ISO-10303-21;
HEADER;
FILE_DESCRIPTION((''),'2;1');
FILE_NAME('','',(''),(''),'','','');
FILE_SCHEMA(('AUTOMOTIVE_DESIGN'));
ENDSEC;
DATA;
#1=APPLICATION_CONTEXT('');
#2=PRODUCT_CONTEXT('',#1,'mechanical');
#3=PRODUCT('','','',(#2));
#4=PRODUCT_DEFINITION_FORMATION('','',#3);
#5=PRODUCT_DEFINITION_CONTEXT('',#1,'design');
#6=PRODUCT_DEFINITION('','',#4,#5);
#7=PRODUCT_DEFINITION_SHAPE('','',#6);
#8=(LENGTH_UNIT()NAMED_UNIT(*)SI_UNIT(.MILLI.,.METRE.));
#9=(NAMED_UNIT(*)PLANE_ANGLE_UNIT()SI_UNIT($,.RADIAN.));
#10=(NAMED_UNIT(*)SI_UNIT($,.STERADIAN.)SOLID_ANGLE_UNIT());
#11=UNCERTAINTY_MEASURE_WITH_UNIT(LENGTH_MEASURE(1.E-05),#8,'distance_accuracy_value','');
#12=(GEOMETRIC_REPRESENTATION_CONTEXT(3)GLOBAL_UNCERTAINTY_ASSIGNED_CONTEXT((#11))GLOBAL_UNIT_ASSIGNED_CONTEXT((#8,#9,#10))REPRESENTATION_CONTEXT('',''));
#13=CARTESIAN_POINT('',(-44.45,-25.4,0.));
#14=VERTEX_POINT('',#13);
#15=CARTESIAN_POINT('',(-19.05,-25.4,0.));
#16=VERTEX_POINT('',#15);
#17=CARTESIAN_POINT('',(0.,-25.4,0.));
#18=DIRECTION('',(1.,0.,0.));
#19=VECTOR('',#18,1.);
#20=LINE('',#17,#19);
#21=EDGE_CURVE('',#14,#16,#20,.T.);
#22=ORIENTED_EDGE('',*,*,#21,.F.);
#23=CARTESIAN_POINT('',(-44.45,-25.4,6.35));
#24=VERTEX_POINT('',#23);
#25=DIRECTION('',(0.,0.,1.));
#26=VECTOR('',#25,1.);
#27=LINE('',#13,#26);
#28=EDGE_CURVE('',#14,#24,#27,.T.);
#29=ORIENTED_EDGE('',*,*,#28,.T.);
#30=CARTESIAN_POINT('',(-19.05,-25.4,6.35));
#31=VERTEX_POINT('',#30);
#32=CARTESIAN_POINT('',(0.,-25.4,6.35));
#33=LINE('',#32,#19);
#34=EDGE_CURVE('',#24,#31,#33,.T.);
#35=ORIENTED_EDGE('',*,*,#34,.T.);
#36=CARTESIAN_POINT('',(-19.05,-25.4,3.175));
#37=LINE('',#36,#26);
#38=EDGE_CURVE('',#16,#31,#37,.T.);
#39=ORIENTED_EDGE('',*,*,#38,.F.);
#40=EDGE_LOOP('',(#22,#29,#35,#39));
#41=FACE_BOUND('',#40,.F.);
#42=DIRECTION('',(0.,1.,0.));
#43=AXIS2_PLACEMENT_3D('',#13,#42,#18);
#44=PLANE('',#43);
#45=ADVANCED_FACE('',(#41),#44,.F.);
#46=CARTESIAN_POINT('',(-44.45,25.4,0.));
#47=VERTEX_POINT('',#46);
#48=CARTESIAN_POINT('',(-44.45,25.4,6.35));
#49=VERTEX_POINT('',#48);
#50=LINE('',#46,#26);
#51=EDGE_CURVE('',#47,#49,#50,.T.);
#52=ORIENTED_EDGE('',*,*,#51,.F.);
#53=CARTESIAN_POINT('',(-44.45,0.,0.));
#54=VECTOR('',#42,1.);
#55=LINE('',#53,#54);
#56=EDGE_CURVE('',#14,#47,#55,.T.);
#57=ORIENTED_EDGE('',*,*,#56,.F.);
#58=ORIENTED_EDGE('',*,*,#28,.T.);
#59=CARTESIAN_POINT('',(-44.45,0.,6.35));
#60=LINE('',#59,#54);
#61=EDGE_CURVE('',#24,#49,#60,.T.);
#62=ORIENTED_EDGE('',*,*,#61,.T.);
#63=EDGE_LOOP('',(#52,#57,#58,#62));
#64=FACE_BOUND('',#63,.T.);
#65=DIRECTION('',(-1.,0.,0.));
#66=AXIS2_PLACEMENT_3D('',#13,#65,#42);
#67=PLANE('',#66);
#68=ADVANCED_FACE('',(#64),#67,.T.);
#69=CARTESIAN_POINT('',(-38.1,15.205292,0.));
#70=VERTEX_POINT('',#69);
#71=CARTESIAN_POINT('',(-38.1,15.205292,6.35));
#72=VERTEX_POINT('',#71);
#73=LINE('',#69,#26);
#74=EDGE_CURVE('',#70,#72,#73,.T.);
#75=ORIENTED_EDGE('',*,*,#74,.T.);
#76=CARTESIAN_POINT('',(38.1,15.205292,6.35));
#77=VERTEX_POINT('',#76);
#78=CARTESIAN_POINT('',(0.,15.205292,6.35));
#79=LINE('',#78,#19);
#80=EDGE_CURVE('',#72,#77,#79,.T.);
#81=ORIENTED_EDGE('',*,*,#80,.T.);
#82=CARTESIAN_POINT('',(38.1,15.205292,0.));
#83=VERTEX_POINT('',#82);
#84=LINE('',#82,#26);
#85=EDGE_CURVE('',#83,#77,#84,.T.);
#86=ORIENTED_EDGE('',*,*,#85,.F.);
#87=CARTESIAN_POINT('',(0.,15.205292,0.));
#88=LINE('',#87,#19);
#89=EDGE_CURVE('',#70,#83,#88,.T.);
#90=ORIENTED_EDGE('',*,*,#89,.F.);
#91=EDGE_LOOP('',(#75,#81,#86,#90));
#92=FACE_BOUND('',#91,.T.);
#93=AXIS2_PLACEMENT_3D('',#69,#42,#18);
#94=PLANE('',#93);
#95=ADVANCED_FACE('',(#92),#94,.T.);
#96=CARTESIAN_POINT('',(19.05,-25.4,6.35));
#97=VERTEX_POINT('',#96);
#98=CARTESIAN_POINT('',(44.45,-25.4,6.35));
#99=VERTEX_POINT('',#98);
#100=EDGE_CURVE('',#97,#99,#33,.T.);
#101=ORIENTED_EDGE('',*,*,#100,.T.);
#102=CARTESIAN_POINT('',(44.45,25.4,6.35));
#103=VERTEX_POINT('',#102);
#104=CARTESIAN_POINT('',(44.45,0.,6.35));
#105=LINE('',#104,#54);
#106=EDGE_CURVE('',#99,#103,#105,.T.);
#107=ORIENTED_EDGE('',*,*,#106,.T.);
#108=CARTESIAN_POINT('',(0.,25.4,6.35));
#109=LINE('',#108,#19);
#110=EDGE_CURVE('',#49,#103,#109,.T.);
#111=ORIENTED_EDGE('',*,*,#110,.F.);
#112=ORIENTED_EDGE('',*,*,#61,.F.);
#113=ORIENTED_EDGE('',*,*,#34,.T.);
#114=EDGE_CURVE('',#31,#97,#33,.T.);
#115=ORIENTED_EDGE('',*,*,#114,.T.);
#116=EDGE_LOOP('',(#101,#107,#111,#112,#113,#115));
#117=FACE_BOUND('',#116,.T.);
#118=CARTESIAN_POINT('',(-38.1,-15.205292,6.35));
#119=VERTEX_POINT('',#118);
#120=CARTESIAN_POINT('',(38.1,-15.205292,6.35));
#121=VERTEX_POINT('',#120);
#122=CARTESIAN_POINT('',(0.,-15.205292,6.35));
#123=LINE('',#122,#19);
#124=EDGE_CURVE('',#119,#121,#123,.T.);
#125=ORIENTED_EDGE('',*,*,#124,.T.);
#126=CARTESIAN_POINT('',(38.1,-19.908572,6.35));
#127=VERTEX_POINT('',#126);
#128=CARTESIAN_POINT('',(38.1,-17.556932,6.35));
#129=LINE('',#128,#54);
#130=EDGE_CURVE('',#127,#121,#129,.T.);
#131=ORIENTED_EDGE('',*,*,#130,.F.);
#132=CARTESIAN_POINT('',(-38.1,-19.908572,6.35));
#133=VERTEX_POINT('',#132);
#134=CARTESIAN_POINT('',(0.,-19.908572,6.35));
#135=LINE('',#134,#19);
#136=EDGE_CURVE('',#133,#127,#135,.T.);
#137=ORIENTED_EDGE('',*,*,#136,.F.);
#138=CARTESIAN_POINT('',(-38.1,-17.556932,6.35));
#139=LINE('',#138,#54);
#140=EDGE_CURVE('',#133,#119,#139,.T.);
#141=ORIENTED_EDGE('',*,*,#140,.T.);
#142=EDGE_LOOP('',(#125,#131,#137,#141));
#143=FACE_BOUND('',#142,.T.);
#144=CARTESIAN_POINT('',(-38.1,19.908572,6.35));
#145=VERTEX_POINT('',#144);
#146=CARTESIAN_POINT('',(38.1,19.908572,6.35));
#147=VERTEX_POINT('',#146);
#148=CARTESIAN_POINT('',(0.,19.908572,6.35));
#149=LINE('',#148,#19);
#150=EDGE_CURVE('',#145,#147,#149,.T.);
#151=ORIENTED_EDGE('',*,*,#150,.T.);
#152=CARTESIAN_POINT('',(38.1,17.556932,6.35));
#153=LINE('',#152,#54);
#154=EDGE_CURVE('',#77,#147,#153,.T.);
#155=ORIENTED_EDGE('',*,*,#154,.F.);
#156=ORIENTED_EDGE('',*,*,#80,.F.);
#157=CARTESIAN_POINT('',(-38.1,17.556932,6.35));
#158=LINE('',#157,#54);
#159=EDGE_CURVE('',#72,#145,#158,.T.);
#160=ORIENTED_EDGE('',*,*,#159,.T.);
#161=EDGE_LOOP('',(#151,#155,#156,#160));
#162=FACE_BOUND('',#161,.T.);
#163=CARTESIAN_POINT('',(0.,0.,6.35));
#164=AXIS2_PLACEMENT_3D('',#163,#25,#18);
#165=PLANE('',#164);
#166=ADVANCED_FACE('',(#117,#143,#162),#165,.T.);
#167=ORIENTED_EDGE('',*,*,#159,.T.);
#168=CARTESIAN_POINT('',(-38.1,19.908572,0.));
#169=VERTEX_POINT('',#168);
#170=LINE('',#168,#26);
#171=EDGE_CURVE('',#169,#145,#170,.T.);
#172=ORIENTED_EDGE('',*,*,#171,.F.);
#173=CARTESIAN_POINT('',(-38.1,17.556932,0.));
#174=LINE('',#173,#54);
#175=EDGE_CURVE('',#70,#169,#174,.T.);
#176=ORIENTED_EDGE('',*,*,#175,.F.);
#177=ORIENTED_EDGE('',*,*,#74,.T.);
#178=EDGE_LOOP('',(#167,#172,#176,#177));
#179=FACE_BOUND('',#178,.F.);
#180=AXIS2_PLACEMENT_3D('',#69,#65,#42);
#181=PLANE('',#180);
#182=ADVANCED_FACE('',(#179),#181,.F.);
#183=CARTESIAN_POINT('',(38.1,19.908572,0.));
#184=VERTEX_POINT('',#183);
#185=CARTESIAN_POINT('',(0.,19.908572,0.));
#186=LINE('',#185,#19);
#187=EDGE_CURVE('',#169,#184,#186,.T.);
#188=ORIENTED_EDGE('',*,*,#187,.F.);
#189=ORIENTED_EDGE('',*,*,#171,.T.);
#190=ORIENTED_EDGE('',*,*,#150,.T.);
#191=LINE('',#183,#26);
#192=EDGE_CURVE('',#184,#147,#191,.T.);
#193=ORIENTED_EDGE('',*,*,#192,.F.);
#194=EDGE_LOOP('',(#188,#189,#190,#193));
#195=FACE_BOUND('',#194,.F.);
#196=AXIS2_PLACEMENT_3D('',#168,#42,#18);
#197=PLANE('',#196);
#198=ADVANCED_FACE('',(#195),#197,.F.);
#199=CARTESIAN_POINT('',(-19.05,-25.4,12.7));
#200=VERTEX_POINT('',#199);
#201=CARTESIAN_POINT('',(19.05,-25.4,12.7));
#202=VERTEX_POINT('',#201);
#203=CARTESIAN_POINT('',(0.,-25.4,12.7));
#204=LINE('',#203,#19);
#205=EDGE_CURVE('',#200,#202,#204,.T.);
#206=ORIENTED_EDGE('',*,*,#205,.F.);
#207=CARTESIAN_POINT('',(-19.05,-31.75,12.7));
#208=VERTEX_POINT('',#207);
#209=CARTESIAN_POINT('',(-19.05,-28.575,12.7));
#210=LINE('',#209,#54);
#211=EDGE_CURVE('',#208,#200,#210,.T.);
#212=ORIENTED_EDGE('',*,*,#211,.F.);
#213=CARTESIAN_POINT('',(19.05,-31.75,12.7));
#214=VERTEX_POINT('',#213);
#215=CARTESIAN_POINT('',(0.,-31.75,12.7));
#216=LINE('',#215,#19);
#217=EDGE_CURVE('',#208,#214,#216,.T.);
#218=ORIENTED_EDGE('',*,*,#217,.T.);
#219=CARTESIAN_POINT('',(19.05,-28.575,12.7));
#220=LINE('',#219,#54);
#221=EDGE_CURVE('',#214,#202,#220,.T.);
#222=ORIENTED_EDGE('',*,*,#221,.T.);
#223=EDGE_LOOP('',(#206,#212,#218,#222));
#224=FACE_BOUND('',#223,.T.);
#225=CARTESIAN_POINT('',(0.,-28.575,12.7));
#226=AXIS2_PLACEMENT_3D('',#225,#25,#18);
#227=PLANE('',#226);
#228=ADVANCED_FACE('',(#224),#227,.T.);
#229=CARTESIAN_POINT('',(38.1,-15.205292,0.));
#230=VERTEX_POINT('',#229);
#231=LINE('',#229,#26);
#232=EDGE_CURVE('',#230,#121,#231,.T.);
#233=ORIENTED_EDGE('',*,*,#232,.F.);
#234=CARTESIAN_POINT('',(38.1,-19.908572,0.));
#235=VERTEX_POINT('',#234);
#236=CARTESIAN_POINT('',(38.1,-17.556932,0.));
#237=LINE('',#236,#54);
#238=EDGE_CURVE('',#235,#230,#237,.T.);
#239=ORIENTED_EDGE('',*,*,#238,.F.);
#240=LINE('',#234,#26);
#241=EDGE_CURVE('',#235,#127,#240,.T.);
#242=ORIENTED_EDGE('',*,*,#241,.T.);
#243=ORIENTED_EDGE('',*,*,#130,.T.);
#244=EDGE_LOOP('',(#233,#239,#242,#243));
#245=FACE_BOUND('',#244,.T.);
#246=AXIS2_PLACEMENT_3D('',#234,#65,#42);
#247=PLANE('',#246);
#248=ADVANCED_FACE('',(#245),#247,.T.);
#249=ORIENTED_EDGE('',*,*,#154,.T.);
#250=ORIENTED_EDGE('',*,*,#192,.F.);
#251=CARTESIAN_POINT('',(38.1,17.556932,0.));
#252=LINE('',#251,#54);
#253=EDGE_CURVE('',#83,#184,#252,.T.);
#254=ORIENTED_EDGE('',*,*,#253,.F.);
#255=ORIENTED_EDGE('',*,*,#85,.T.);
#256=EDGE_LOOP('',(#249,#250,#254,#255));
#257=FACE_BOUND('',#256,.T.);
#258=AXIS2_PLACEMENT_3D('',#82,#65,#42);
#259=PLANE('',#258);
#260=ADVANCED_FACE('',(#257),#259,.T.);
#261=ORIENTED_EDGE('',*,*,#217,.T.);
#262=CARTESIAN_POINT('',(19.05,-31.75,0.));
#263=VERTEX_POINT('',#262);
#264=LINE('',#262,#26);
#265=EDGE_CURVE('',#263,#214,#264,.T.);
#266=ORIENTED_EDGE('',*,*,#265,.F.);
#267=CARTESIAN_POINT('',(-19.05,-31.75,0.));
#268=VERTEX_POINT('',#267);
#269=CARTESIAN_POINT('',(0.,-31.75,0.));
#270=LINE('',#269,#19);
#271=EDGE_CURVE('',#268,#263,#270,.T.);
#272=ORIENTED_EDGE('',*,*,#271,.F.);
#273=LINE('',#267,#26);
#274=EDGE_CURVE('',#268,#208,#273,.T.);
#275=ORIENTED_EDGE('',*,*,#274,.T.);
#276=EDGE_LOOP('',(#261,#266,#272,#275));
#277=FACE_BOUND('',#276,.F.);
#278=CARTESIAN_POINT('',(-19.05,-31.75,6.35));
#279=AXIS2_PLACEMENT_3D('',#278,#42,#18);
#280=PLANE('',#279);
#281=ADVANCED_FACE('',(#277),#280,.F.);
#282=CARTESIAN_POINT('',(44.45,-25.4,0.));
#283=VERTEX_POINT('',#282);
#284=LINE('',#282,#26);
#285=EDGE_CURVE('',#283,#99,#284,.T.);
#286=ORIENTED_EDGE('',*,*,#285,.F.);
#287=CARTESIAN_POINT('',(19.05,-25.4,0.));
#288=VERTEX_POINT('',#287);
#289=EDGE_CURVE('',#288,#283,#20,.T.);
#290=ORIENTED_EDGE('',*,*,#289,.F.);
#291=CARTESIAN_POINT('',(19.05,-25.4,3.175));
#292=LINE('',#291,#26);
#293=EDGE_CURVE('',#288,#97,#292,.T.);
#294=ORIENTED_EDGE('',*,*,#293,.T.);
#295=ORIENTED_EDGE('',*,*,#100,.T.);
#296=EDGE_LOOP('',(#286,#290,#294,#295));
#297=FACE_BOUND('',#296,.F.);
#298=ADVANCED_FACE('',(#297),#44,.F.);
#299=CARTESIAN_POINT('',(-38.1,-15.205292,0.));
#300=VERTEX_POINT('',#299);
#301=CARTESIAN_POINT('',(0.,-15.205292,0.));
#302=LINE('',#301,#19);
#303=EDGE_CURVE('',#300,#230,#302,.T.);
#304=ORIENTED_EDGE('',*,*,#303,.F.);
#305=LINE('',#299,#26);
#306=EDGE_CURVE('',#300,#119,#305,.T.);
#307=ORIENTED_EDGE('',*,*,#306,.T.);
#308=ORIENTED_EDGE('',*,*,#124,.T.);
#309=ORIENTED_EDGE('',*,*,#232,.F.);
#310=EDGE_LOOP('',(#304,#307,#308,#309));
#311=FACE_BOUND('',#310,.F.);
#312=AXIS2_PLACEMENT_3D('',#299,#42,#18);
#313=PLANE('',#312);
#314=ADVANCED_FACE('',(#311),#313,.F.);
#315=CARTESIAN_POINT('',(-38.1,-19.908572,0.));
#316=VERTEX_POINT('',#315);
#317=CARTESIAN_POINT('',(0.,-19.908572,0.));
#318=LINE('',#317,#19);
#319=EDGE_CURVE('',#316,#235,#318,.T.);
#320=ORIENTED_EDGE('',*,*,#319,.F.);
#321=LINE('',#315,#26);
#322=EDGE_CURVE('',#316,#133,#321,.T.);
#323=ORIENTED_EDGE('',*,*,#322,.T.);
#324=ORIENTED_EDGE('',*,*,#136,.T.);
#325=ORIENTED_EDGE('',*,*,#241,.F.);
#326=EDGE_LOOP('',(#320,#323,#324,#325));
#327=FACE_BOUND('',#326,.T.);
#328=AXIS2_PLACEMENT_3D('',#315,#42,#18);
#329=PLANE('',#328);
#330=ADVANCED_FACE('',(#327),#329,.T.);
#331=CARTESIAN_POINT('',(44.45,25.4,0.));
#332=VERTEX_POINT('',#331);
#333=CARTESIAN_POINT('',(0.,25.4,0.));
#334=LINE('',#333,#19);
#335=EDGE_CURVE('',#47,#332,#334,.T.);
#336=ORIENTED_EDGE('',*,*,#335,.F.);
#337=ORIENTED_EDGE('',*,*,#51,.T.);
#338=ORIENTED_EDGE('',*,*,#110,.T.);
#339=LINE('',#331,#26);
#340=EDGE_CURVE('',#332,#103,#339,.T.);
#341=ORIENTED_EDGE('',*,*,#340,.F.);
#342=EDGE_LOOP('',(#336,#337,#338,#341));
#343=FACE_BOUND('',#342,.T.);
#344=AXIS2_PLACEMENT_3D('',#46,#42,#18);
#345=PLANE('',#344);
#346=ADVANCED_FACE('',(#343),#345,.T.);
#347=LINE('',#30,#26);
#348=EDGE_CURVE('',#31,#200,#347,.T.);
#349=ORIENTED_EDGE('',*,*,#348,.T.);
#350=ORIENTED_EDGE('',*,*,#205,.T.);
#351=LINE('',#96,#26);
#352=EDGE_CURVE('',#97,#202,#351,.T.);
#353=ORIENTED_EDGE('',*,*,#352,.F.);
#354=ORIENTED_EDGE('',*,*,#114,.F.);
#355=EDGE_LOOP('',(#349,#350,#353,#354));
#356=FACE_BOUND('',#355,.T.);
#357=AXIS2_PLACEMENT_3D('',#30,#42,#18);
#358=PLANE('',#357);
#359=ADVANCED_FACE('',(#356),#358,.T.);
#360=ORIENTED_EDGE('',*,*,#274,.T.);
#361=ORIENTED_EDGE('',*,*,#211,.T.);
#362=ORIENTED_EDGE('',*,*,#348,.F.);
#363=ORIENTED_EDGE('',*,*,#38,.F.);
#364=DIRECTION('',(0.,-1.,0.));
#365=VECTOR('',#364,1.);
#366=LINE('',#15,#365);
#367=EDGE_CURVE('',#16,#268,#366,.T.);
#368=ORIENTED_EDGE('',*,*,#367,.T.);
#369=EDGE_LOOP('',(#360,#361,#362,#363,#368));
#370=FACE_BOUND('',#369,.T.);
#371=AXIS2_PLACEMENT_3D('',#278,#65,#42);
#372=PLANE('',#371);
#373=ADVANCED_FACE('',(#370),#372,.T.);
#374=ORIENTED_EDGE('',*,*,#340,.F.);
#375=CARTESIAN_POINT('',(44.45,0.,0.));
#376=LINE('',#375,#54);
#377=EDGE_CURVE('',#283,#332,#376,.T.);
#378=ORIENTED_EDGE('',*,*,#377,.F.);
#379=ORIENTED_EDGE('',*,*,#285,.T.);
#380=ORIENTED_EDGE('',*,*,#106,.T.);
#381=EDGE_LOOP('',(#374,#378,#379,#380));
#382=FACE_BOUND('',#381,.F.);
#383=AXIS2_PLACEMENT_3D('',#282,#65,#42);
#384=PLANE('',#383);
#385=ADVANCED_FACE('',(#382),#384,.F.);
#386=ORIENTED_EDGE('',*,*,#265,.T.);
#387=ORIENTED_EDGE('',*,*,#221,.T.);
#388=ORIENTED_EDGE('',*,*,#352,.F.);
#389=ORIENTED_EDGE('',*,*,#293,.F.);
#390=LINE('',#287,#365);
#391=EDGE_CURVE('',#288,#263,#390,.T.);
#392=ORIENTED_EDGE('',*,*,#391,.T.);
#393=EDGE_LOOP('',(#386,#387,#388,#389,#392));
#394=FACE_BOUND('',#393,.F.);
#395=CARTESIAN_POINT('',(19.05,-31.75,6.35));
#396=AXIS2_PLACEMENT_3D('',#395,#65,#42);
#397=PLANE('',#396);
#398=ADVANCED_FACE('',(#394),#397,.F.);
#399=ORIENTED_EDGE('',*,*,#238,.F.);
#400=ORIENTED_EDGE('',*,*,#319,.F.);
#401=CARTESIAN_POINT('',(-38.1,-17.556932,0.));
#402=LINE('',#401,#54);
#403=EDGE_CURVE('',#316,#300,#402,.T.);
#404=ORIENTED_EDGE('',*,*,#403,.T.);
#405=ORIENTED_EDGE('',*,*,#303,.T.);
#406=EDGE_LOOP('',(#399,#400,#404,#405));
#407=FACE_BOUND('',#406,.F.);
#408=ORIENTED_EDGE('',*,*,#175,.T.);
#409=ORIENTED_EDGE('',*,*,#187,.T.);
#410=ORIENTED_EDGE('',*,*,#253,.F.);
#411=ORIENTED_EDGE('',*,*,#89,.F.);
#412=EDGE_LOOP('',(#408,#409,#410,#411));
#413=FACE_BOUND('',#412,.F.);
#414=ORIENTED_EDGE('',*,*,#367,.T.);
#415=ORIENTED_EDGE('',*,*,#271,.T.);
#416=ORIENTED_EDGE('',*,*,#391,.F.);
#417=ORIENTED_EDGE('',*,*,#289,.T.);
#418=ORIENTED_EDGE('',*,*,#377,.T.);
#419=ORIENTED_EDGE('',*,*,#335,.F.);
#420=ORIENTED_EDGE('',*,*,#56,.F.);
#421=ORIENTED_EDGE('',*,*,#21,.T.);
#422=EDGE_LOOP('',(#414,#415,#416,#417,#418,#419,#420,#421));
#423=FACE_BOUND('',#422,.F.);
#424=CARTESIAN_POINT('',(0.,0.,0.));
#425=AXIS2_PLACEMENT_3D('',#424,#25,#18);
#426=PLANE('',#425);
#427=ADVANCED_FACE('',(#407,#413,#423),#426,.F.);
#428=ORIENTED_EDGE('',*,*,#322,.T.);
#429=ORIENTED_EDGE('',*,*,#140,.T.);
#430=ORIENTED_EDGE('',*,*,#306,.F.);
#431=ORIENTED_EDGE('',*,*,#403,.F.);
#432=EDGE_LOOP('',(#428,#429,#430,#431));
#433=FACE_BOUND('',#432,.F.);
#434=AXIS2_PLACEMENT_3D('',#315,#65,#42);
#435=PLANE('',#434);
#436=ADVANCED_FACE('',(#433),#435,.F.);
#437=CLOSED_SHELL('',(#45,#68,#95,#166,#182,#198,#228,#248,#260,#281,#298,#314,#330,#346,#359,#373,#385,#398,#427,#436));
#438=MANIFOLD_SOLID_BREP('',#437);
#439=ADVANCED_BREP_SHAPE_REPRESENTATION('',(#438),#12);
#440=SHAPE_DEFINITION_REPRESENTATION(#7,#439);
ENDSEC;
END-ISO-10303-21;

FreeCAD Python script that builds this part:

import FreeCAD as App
import Part
import Sketcher
Q = App.Units.Quantity

doc = App.newDocument("Part")
body = doc.addObject("PartDesign::Body", "Body")

# Sketch on XY plane
sketch1 = body.newObject("Sketcher::SketchObject", "Sketch")
sketch1.AttachmentSupport = (doc.getObject("XY_Plane"), [""])
sketch1.MapMode = "FlatFace"
sketch1.addGeometry([
    Part.LineSegment(App.Vector(-44.5, 25.4, 0), App.Vector(-44.5, -25.4, 0)),  # 0
    Part.LineSegment(App.Vector(-44.5, -25.4, 0), App.Vector(44.5, -25.4, 0)),  # 1
    Part.LineSegment(App.Vector(44.5, -25.4, 0), App.Vector(44.5, 25.4, 0)),  # 2
    Part.LineSegment(App.Vector(44.5, 25.4, 0), App.Vector(-44.5, 25.4, 0)),  # 3
    Part.LineSegment(App.Vector(38.1, -19.9, 0), App.Vector(-38.1, -19.9, 0)),  # 4
    Part.LineSegment(App.Vector(-38.1, -19.9, 0), App.Vector(-38.1, -15.2, 0)),  # 5
    Part.LineSegment(App.Vector(-38.1, -15.2, 0), App.Vector(38.1, -15.2, 0)),  # 6
    Part.LineSegment(App.Vector(38.1, -15.2, 0), App.Vector(38.1, -19.9, 0)),  # 7
    Part.LineSegment(App.Vector(38.1, 15.2, 0), App.Vector(-38.1, 15.2, 0)),  # 8
    Part.LineSegment(App.Vector(-38.1, 15.2, 0), App.Vector(-38.1, 19.9, 0)),  # 9
    Part.LineSegment(App.Vector(-38.1, 19.9, 0), App.Vector(38.1, 19.9, 0)),  # 10
    Part.LineSegment(App.Vector(38.1, 19.9, 0), App.Vector(38.1, 15.2, 0)),  # 11
], False)
sketch1.addConstraint([
    Sketcher.Constraint("Coincident", 0, 2, 1, 1),
    Sketcher.Constraint("Coincident", 1, 2, 2, 1),
    Sketcher.Constraint("Coincident", 2, 2, 3, 1),
    Sketcher.Constraint("Coincident", 3, 2, 0, 1),
    Sketcher.Constraint("Coincident", 4, 2, 5, 1),
    Sketcher.Constraint("Coincident", 5, 2, 6, 1),
    Sketcher.Constraint("Coincident", 6, 2, 7, 1),
    Sketcher.Constraint("Coincident", 7, 2, 4, 1),
    Sketcher.Constraint("Coincident", 8, 2, 9, 1),
    Sketcher.Constraint("Coincident", 9, 2, 10, 1),
    Sketcher.Constraint("Coincident", 10, 2, 11, 1),
    Sketcher.Constraint("Coincident", 11, 2, 8, 1),
    Sketcher.Constraint("Vertical", 0),
    Sketcher.Constraint("Horizontal", 1),
    Sketcher.Constraint("Vertical", 2),
    Sketcher.Constraint("Horizontal", 3),
    Sketcher.Constraint("Horizontal", 4),
    Sketcher.Constraint("Vertical", 5),
    Sketcher.Constraint("Horizontal", 6),
    Sketcher.Constraint("Vertical", 7),
    Sketcher.Constraint("Horizontal", 8),
    Sketcher.Constraint("Vertical", 9),
    Sketcher.Constraint("Horizontal", 10),
    Sketcher.Constraint("Vertical", 11),
    Sketcher.Constraint("Symmetric", 0, 2, 2, 2, -1, 1),
    Sketcher.Constraint("Symmetric", 6, 2, 8, 2, -1, 1),
    Sketcher.Constraint("Symmetric", 4, 2, 10, 2, -1, 1),
    Sketcher.Constraint("Vertical", 5, 2, 8, 2),
    Sketcher.Constraint("DistanceX", 4, 2, 4, 1, Q("3 in")),
    Sketcher.Constraint("DistanceY", 0, 2, 0, 1, Q("2 in")),
    Sketcher.Constraint("DistanceX", 1, 1, 1, 2, Q("3.5 in")),
    Sketcher.Constraint("DistanceY", 5, 1, 5, 2, Q("4.70328 mm")),
    Sketcher.Constraint("DistanceY", 4, 2, -1, 1, Q("19.908572 mm")),
])
pad1 = body.newObject("PartDesign::Pad", "Pad")
pad1.Profile = sketch1
pad1.Length = Q("0.25 in")

# Sketch on XZ plane
sketch2 = body.newObject("Sketcher::SketchObject", "Sketch001")
sketch2.AttachmentSupport = (doc.getObject("XZ_Plane"), [""])
sketch2.MapMode = "FlatFace"
sketch2.AttachmentOffset = App.Placement(App.Vector(0, 0, 1 * 25.4), App.Rotation())
sketch2.addGeometry([
    Part.LineSegment(App.Vector(-19, 6, 0), App.Vector(-19, 0, 0)),
    Part.LineSegment(App.Vector(-19, 0, 0), App.Vector(19, 0, 0)),
    Part.LineSegment(App.Vector(19, 0, 0), App.Vector(19, 6, 0)),
    Part.LineSegment(App.Vector(19, 6, 0), App.Vector(-19, 6, 0)),
], False)
sketch2.addConstraint([
    Sketcher.Constraint("Coincident", 0, 2, 1, 1),
    Sketcher.Constraint("Coincident", 1, 2, 2, 1),
    Sketcher.Constraint("Coincident", 2, 2, 3, 1),
    Sketcher.Constraint("Coincident", 3, 2, 0, 1),
    Sketcher.Constraint("Vertical", 0),
    Sketcher.Constraint("Horizontal", 1),
    Sketcher.Constraint("Vertical", 2),
    Sketcher.Constraint("Horizontal", 3),
    Sketcher.Constraint("Symmetric", 0, 2, 1, 2, -1, 1),
    Sketcher.Constraint("DistanceX", 1, 1, 1, 2, Q("1.5 in")),
    Sketcher.Constraint("DistanceY", 0, 2, 0, 1, Q("0.25 in")),
])
pad2 = body.newObject("PartDesign::Pad", "Pad001")
pad2.Profile = sketch2
pad2.Length = Q("0.25 in")

# Sketch on XY plane
sketch3 = body.newObject("Sketcher::SketchObject", "Sketch002")
sketch3.AttachmentSupport = (doc.getObject("XY_Plane"), [""])
sketch3.MapMode = "FlatFace"
sketch3.AttachmentOffset = App.Placement(App.Vector(0, 0, 0.25 * 25.4), App.Rotation())
sketch3.addGeometry([
    Part.LineSegment(App.Vector(-19, -25, 0), App.Vector(-19, -32, 0)),
    Part.LineSegment(App.Vector(-19, -32, 0), App.Vector(19, -32, 0)),
    Part.LineSegment(App.Vector(19, -32, 0), App.Vector(19, -25, 0)),
    Part.LineSegment(App.Vector(19, -25, 0), App.Vector(-19, -25, 0)),
], False)
sketch3.addConstraint([
    Sketcher.Constraint("Coincident", 0, 2, 1, 1),
    Sketcher.Constraint("Coincident", 1, 2, 2, 1),
    Sketcher.Constraint("Coincident", 2, 2, 3, 1),
    Sketcher.Constraint("Coincident", 3, 2, 0, 1),
    Sketcher.Constraint("Vertical", 0),
    Sketcher.Constraint("Horizontal", 1),
    Sketcher.Constraint("Vertical", 2),
    Sketcher.Constraint("Horizontal", 3),
    Sketcher.Constraint("DistanceX", 1, 1, 1, 2, Q("1.5 in")),
    Sketcher.Constraint("DistanceY", 2, 2, -1, 1, Q("1 in")),
    Sketcher.Constraint("DistanceY", 0, 2, 0, 1, Q("0.25 in")),
    Sketcher.Constraint("DistanceX", 0, 2, -1, 1, Q("0.75 in")),
])
pad3 = body.newObject("PartDesign::Pad", "Pad002")
pad3.Profile = sketch3
pad3.Length = Q("0.25 in")

doc.recompute()
